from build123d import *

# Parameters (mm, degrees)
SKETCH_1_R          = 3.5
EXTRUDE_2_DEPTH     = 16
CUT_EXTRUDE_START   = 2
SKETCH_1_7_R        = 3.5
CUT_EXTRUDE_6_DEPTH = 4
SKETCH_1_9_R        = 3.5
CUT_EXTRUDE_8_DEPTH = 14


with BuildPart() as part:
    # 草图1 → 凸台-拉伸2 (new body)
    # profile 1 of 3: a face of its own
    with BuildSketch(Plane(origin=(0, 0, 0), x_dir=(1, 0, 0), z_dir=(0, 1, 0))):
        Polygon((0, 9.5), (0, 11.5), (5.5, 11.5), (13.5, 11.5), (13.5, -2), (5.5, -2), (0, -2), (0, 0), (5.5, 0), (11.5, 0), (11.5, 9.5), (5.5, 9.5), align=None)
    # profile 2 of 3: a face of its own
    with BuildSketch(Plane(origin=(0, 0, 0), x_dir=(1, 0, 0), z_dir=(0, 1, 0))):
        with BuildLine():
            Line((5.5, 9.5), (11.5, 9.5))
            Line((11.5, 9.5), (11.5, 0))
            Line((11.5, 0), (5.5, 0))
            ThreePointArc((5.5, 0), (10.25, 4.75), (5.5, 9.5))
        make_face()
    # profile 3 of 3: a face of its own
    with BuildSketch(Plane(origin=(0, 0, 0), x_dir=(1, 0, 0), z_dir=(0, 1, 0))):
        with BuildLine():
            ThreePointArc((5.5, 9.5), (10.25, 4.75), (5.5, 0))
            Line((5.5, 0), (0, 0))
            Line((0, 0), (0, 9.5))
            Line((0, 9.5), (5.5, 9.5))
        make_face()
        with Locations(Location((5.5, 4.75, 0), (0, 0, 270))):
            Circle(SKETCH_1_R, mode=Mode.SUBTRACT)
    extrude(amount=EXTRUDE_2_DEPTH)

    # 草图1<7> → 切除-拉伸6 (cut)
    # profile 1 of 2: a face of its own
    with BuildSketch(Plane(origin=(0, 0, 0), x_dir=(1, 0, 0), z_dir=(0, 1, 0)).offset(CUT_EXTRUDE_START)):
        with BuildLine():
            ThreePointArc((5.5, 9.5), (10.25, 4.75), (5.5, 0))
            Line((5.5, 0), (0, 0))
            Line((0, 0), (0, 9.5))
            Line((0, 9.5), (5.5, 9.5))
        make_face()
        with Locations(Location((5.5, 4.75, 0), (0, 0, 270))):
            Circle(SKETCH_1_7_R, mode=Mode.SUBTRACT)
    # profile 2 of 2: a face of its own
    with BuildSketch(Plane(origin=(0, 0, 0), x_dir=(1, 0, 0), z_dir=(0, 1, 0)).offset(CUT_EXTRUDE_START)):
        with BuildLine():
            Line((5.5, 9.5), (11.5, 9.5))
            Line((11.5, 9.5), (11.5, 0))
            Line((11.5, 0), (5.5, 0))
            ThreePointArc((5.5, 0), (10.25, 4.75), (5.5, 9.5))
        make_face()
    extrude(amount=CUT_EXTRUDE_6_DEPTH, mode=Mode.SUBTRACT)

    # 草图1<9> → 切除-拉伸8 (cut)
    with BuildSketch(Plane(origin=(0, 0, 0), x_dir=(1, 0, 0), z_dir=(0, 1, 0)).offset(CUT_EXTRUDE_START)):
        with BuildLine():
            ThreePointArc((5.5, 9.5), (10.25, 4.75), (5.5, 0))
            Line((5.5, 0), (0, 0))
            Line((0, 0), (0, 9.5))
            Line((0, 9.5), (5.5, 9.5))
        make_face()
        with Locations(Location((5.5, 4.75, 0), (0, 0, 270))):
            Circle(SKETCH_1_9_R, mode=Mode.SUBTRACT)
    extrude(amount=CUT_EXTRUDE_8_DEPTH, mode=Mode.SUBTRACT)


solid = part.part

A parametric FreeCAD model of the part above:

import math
import FreeCAD as App
import Part
import Sketcher

V = App.Vector


def add_polygon(sketch, points):
    """Adds a closed chain of lines whose ends are joined by coincident constraints."""
    first, n = sketch.GeometryCount, len(points)
    for a, b in zip(points, points[1:] + points[:1]):
        sketch.addGeometry(Part.LineSegment(App.Vector(*a, 0), App.Vector(*b, 0)), False)
    for i in range(n):
        sketch.addConstraint(Sketcher.Constraint("Coincident", first + i, 2, first + (i + 1) % n, 1))

doc = App.newDocument("Part")
body = doc.addObject("PartDesign::Body", "Body")

# Sketch on XZ plane
sketch1 = doc.addObject("Sketcher::SketchObject", "Sketch")
body.addObject(sketch1)
sketch1.AttachmentSupport = (doc.XZ_Plane, [""])
sketch1.MapMode = "FlatFace"
add_polygon(sketch1, [(0, -11.5), (0, 2), (13.5, 2), (13.5, -11.5)])  # lines 0-3
sketch1.addGeometry(Part.Circle(V(5.5, -4.8, 0), V(0, 0, 1), 3.5), False)  # 4
sketch1.addConstraint([
    Sketcher.Constraint("Vertical", 0),
    Sketcher.Constraint("Horizontal", 1),
    Sketcher.Constraint("Vertical", 2),
    Sketcher.Constraint("Horizontal", 3),
    Sketcher.Constraint("PointOnObject", 0, 2, -2),
    Sketcher.Constraint("Equal", 3, 0),
    Sketcher.Constraint("Diameter", 4, 7.0),
    Sketcher.Constraint("DistanceX", 1, 1, 1, 2, 13.5),
    Sketcher.Constraint("DistanceY", -1, 1, 0, 2, 2.0),
    Sketcher.Constraint("DistanceX", 4, 3, 1, 2, 8.0),
    Sketcher.Constraint("DistanceY", 4, 3, -1, 1, 4.75),
])
pad1 = doc.addObject("PartDesign::Pad", "Pad")
body.addObject(pad1)
pad1.Profile = sketch1
pad1.Length = 16
pad1.Reversed = True

# Sketch on XZ plane
sketch2 = doc.addObject("Sketcher::SketchObject", "Sketch001")
body.addObject(sketch2)
sketch2.AttachmentSupport = (doc.XZ_Plane, [""])
sketch2.MapMode = "FlatFace"
sketch2.AttachmentOffset = App.Placement(V(0, 0, -2), App.Rotation())
add_polygon(sketch2, [(11.5, -9.5), (0, -9.5), (0, 0), (11.5, 0)])  # lines 0-3
sketch2.addGeometry(Part.Circle(V(5.5, -4.8, 0), V(0, 0, 1), 3.5), False)  # 4
sketch2.addConstraint([
    Sketcher.Constraint("Horizontal", 0),
    Sketcher.Constraint("Vertical", 1),
    Sketcher.Constraint("Horizontal", 2),
    Sketcher.Constraint("Vertical", 3),
    Sketcher.Constraint("Coincident", 1, 2, -1, 1),
    Sketcher.Constraint("Diameter", 4, 7.0),
    Sketcher.Constraint("DistanceX", 0, 2, 0, 1, 11.5),
    Sketcher.Constraint("DistanceY", 1, 1, 1, 2, 9.5),
    Sketcher.Constraint("DistanceX", 4, 3, 2, 2, 6.0),
    Sketcher.Constraint("DistanceY", 4, 3, -1, 1, 4.75),
])
pocket1 = doc.addObject("PartDesign::Pocket", "Pocket")
body.addObject(pocket1)
pocket1.Profile = sketch2
pocket1.Length = 4

# Sketch on XZ plane
sketch3 = doc.addObject("Sketcher::SketchObject", "Sketch002")
body.addObject(sketch3)
sketch3.AttachmentSupport = (doc.XZ_Plane, [""])
sketch3.MapMode = "FlatFace"
sketch3.AttachmentOffset = App.Placement(V(0, 0, -2), App.Rotation())
sketch3.addGeometry([
    Part.ArcOfCircle(Part.Circle(V(5.5, -4.8, 0), V(0, 0, 1), 4.8), math.radians(-90), math.radians(90)),  # 0
    Part.LineSegment(V(5.5, -9.5, 0), V(0, -9.5, 0)),  # 1
    Part.LineSegment(V(0, -9.5, 0), V(0, 0, 0)),  # 2
    Part.LineSegment(V(0, 0, 0), V(5.5, 0, 0)),  # 3
    Part.Circle(V(5.5, -4.8, 0), V(0, 0, 1), 3.5),  # 4
], False)
sketch3.addConstraint([
    Sketcher.Constraint("Tangent", 0, 1, 1, 1),
    Sketcher.Constraint("Coincident", 1, 2, 2, 1),
    Sketcher.Constraint("Coincident", 2, 2, 3, 1),
    Sketcher.Constraint("Tangent", 3, 2, 0, 2),
    Sketcher.Constraint("Horizontal", 1),
    Sketcher.Constraint("Vertical", 2),
    Sketcher.Constraint("Horizontal", 3),
    Sketcher.Constraint("Coincident", 2, 2, -1, 1),
    Sketcher.Constraint("Coincident", 4, 3, 0, 3),
    Sketcher.Constraint("Diameter", 4, 7.0),
    Sketcher.Constraint("Radius", 0, 4.75),
    Sketcher.Constraint("DistanceX", 1, 2, 1, 1, 5.5),
])
pocket2 = doc.addObject("PartDesign::Pocket", "Pocket001")
body.addObject(pocket2)
pocket2.Profile = sketch3
pocket2.Length = 14

doc.recompute()
